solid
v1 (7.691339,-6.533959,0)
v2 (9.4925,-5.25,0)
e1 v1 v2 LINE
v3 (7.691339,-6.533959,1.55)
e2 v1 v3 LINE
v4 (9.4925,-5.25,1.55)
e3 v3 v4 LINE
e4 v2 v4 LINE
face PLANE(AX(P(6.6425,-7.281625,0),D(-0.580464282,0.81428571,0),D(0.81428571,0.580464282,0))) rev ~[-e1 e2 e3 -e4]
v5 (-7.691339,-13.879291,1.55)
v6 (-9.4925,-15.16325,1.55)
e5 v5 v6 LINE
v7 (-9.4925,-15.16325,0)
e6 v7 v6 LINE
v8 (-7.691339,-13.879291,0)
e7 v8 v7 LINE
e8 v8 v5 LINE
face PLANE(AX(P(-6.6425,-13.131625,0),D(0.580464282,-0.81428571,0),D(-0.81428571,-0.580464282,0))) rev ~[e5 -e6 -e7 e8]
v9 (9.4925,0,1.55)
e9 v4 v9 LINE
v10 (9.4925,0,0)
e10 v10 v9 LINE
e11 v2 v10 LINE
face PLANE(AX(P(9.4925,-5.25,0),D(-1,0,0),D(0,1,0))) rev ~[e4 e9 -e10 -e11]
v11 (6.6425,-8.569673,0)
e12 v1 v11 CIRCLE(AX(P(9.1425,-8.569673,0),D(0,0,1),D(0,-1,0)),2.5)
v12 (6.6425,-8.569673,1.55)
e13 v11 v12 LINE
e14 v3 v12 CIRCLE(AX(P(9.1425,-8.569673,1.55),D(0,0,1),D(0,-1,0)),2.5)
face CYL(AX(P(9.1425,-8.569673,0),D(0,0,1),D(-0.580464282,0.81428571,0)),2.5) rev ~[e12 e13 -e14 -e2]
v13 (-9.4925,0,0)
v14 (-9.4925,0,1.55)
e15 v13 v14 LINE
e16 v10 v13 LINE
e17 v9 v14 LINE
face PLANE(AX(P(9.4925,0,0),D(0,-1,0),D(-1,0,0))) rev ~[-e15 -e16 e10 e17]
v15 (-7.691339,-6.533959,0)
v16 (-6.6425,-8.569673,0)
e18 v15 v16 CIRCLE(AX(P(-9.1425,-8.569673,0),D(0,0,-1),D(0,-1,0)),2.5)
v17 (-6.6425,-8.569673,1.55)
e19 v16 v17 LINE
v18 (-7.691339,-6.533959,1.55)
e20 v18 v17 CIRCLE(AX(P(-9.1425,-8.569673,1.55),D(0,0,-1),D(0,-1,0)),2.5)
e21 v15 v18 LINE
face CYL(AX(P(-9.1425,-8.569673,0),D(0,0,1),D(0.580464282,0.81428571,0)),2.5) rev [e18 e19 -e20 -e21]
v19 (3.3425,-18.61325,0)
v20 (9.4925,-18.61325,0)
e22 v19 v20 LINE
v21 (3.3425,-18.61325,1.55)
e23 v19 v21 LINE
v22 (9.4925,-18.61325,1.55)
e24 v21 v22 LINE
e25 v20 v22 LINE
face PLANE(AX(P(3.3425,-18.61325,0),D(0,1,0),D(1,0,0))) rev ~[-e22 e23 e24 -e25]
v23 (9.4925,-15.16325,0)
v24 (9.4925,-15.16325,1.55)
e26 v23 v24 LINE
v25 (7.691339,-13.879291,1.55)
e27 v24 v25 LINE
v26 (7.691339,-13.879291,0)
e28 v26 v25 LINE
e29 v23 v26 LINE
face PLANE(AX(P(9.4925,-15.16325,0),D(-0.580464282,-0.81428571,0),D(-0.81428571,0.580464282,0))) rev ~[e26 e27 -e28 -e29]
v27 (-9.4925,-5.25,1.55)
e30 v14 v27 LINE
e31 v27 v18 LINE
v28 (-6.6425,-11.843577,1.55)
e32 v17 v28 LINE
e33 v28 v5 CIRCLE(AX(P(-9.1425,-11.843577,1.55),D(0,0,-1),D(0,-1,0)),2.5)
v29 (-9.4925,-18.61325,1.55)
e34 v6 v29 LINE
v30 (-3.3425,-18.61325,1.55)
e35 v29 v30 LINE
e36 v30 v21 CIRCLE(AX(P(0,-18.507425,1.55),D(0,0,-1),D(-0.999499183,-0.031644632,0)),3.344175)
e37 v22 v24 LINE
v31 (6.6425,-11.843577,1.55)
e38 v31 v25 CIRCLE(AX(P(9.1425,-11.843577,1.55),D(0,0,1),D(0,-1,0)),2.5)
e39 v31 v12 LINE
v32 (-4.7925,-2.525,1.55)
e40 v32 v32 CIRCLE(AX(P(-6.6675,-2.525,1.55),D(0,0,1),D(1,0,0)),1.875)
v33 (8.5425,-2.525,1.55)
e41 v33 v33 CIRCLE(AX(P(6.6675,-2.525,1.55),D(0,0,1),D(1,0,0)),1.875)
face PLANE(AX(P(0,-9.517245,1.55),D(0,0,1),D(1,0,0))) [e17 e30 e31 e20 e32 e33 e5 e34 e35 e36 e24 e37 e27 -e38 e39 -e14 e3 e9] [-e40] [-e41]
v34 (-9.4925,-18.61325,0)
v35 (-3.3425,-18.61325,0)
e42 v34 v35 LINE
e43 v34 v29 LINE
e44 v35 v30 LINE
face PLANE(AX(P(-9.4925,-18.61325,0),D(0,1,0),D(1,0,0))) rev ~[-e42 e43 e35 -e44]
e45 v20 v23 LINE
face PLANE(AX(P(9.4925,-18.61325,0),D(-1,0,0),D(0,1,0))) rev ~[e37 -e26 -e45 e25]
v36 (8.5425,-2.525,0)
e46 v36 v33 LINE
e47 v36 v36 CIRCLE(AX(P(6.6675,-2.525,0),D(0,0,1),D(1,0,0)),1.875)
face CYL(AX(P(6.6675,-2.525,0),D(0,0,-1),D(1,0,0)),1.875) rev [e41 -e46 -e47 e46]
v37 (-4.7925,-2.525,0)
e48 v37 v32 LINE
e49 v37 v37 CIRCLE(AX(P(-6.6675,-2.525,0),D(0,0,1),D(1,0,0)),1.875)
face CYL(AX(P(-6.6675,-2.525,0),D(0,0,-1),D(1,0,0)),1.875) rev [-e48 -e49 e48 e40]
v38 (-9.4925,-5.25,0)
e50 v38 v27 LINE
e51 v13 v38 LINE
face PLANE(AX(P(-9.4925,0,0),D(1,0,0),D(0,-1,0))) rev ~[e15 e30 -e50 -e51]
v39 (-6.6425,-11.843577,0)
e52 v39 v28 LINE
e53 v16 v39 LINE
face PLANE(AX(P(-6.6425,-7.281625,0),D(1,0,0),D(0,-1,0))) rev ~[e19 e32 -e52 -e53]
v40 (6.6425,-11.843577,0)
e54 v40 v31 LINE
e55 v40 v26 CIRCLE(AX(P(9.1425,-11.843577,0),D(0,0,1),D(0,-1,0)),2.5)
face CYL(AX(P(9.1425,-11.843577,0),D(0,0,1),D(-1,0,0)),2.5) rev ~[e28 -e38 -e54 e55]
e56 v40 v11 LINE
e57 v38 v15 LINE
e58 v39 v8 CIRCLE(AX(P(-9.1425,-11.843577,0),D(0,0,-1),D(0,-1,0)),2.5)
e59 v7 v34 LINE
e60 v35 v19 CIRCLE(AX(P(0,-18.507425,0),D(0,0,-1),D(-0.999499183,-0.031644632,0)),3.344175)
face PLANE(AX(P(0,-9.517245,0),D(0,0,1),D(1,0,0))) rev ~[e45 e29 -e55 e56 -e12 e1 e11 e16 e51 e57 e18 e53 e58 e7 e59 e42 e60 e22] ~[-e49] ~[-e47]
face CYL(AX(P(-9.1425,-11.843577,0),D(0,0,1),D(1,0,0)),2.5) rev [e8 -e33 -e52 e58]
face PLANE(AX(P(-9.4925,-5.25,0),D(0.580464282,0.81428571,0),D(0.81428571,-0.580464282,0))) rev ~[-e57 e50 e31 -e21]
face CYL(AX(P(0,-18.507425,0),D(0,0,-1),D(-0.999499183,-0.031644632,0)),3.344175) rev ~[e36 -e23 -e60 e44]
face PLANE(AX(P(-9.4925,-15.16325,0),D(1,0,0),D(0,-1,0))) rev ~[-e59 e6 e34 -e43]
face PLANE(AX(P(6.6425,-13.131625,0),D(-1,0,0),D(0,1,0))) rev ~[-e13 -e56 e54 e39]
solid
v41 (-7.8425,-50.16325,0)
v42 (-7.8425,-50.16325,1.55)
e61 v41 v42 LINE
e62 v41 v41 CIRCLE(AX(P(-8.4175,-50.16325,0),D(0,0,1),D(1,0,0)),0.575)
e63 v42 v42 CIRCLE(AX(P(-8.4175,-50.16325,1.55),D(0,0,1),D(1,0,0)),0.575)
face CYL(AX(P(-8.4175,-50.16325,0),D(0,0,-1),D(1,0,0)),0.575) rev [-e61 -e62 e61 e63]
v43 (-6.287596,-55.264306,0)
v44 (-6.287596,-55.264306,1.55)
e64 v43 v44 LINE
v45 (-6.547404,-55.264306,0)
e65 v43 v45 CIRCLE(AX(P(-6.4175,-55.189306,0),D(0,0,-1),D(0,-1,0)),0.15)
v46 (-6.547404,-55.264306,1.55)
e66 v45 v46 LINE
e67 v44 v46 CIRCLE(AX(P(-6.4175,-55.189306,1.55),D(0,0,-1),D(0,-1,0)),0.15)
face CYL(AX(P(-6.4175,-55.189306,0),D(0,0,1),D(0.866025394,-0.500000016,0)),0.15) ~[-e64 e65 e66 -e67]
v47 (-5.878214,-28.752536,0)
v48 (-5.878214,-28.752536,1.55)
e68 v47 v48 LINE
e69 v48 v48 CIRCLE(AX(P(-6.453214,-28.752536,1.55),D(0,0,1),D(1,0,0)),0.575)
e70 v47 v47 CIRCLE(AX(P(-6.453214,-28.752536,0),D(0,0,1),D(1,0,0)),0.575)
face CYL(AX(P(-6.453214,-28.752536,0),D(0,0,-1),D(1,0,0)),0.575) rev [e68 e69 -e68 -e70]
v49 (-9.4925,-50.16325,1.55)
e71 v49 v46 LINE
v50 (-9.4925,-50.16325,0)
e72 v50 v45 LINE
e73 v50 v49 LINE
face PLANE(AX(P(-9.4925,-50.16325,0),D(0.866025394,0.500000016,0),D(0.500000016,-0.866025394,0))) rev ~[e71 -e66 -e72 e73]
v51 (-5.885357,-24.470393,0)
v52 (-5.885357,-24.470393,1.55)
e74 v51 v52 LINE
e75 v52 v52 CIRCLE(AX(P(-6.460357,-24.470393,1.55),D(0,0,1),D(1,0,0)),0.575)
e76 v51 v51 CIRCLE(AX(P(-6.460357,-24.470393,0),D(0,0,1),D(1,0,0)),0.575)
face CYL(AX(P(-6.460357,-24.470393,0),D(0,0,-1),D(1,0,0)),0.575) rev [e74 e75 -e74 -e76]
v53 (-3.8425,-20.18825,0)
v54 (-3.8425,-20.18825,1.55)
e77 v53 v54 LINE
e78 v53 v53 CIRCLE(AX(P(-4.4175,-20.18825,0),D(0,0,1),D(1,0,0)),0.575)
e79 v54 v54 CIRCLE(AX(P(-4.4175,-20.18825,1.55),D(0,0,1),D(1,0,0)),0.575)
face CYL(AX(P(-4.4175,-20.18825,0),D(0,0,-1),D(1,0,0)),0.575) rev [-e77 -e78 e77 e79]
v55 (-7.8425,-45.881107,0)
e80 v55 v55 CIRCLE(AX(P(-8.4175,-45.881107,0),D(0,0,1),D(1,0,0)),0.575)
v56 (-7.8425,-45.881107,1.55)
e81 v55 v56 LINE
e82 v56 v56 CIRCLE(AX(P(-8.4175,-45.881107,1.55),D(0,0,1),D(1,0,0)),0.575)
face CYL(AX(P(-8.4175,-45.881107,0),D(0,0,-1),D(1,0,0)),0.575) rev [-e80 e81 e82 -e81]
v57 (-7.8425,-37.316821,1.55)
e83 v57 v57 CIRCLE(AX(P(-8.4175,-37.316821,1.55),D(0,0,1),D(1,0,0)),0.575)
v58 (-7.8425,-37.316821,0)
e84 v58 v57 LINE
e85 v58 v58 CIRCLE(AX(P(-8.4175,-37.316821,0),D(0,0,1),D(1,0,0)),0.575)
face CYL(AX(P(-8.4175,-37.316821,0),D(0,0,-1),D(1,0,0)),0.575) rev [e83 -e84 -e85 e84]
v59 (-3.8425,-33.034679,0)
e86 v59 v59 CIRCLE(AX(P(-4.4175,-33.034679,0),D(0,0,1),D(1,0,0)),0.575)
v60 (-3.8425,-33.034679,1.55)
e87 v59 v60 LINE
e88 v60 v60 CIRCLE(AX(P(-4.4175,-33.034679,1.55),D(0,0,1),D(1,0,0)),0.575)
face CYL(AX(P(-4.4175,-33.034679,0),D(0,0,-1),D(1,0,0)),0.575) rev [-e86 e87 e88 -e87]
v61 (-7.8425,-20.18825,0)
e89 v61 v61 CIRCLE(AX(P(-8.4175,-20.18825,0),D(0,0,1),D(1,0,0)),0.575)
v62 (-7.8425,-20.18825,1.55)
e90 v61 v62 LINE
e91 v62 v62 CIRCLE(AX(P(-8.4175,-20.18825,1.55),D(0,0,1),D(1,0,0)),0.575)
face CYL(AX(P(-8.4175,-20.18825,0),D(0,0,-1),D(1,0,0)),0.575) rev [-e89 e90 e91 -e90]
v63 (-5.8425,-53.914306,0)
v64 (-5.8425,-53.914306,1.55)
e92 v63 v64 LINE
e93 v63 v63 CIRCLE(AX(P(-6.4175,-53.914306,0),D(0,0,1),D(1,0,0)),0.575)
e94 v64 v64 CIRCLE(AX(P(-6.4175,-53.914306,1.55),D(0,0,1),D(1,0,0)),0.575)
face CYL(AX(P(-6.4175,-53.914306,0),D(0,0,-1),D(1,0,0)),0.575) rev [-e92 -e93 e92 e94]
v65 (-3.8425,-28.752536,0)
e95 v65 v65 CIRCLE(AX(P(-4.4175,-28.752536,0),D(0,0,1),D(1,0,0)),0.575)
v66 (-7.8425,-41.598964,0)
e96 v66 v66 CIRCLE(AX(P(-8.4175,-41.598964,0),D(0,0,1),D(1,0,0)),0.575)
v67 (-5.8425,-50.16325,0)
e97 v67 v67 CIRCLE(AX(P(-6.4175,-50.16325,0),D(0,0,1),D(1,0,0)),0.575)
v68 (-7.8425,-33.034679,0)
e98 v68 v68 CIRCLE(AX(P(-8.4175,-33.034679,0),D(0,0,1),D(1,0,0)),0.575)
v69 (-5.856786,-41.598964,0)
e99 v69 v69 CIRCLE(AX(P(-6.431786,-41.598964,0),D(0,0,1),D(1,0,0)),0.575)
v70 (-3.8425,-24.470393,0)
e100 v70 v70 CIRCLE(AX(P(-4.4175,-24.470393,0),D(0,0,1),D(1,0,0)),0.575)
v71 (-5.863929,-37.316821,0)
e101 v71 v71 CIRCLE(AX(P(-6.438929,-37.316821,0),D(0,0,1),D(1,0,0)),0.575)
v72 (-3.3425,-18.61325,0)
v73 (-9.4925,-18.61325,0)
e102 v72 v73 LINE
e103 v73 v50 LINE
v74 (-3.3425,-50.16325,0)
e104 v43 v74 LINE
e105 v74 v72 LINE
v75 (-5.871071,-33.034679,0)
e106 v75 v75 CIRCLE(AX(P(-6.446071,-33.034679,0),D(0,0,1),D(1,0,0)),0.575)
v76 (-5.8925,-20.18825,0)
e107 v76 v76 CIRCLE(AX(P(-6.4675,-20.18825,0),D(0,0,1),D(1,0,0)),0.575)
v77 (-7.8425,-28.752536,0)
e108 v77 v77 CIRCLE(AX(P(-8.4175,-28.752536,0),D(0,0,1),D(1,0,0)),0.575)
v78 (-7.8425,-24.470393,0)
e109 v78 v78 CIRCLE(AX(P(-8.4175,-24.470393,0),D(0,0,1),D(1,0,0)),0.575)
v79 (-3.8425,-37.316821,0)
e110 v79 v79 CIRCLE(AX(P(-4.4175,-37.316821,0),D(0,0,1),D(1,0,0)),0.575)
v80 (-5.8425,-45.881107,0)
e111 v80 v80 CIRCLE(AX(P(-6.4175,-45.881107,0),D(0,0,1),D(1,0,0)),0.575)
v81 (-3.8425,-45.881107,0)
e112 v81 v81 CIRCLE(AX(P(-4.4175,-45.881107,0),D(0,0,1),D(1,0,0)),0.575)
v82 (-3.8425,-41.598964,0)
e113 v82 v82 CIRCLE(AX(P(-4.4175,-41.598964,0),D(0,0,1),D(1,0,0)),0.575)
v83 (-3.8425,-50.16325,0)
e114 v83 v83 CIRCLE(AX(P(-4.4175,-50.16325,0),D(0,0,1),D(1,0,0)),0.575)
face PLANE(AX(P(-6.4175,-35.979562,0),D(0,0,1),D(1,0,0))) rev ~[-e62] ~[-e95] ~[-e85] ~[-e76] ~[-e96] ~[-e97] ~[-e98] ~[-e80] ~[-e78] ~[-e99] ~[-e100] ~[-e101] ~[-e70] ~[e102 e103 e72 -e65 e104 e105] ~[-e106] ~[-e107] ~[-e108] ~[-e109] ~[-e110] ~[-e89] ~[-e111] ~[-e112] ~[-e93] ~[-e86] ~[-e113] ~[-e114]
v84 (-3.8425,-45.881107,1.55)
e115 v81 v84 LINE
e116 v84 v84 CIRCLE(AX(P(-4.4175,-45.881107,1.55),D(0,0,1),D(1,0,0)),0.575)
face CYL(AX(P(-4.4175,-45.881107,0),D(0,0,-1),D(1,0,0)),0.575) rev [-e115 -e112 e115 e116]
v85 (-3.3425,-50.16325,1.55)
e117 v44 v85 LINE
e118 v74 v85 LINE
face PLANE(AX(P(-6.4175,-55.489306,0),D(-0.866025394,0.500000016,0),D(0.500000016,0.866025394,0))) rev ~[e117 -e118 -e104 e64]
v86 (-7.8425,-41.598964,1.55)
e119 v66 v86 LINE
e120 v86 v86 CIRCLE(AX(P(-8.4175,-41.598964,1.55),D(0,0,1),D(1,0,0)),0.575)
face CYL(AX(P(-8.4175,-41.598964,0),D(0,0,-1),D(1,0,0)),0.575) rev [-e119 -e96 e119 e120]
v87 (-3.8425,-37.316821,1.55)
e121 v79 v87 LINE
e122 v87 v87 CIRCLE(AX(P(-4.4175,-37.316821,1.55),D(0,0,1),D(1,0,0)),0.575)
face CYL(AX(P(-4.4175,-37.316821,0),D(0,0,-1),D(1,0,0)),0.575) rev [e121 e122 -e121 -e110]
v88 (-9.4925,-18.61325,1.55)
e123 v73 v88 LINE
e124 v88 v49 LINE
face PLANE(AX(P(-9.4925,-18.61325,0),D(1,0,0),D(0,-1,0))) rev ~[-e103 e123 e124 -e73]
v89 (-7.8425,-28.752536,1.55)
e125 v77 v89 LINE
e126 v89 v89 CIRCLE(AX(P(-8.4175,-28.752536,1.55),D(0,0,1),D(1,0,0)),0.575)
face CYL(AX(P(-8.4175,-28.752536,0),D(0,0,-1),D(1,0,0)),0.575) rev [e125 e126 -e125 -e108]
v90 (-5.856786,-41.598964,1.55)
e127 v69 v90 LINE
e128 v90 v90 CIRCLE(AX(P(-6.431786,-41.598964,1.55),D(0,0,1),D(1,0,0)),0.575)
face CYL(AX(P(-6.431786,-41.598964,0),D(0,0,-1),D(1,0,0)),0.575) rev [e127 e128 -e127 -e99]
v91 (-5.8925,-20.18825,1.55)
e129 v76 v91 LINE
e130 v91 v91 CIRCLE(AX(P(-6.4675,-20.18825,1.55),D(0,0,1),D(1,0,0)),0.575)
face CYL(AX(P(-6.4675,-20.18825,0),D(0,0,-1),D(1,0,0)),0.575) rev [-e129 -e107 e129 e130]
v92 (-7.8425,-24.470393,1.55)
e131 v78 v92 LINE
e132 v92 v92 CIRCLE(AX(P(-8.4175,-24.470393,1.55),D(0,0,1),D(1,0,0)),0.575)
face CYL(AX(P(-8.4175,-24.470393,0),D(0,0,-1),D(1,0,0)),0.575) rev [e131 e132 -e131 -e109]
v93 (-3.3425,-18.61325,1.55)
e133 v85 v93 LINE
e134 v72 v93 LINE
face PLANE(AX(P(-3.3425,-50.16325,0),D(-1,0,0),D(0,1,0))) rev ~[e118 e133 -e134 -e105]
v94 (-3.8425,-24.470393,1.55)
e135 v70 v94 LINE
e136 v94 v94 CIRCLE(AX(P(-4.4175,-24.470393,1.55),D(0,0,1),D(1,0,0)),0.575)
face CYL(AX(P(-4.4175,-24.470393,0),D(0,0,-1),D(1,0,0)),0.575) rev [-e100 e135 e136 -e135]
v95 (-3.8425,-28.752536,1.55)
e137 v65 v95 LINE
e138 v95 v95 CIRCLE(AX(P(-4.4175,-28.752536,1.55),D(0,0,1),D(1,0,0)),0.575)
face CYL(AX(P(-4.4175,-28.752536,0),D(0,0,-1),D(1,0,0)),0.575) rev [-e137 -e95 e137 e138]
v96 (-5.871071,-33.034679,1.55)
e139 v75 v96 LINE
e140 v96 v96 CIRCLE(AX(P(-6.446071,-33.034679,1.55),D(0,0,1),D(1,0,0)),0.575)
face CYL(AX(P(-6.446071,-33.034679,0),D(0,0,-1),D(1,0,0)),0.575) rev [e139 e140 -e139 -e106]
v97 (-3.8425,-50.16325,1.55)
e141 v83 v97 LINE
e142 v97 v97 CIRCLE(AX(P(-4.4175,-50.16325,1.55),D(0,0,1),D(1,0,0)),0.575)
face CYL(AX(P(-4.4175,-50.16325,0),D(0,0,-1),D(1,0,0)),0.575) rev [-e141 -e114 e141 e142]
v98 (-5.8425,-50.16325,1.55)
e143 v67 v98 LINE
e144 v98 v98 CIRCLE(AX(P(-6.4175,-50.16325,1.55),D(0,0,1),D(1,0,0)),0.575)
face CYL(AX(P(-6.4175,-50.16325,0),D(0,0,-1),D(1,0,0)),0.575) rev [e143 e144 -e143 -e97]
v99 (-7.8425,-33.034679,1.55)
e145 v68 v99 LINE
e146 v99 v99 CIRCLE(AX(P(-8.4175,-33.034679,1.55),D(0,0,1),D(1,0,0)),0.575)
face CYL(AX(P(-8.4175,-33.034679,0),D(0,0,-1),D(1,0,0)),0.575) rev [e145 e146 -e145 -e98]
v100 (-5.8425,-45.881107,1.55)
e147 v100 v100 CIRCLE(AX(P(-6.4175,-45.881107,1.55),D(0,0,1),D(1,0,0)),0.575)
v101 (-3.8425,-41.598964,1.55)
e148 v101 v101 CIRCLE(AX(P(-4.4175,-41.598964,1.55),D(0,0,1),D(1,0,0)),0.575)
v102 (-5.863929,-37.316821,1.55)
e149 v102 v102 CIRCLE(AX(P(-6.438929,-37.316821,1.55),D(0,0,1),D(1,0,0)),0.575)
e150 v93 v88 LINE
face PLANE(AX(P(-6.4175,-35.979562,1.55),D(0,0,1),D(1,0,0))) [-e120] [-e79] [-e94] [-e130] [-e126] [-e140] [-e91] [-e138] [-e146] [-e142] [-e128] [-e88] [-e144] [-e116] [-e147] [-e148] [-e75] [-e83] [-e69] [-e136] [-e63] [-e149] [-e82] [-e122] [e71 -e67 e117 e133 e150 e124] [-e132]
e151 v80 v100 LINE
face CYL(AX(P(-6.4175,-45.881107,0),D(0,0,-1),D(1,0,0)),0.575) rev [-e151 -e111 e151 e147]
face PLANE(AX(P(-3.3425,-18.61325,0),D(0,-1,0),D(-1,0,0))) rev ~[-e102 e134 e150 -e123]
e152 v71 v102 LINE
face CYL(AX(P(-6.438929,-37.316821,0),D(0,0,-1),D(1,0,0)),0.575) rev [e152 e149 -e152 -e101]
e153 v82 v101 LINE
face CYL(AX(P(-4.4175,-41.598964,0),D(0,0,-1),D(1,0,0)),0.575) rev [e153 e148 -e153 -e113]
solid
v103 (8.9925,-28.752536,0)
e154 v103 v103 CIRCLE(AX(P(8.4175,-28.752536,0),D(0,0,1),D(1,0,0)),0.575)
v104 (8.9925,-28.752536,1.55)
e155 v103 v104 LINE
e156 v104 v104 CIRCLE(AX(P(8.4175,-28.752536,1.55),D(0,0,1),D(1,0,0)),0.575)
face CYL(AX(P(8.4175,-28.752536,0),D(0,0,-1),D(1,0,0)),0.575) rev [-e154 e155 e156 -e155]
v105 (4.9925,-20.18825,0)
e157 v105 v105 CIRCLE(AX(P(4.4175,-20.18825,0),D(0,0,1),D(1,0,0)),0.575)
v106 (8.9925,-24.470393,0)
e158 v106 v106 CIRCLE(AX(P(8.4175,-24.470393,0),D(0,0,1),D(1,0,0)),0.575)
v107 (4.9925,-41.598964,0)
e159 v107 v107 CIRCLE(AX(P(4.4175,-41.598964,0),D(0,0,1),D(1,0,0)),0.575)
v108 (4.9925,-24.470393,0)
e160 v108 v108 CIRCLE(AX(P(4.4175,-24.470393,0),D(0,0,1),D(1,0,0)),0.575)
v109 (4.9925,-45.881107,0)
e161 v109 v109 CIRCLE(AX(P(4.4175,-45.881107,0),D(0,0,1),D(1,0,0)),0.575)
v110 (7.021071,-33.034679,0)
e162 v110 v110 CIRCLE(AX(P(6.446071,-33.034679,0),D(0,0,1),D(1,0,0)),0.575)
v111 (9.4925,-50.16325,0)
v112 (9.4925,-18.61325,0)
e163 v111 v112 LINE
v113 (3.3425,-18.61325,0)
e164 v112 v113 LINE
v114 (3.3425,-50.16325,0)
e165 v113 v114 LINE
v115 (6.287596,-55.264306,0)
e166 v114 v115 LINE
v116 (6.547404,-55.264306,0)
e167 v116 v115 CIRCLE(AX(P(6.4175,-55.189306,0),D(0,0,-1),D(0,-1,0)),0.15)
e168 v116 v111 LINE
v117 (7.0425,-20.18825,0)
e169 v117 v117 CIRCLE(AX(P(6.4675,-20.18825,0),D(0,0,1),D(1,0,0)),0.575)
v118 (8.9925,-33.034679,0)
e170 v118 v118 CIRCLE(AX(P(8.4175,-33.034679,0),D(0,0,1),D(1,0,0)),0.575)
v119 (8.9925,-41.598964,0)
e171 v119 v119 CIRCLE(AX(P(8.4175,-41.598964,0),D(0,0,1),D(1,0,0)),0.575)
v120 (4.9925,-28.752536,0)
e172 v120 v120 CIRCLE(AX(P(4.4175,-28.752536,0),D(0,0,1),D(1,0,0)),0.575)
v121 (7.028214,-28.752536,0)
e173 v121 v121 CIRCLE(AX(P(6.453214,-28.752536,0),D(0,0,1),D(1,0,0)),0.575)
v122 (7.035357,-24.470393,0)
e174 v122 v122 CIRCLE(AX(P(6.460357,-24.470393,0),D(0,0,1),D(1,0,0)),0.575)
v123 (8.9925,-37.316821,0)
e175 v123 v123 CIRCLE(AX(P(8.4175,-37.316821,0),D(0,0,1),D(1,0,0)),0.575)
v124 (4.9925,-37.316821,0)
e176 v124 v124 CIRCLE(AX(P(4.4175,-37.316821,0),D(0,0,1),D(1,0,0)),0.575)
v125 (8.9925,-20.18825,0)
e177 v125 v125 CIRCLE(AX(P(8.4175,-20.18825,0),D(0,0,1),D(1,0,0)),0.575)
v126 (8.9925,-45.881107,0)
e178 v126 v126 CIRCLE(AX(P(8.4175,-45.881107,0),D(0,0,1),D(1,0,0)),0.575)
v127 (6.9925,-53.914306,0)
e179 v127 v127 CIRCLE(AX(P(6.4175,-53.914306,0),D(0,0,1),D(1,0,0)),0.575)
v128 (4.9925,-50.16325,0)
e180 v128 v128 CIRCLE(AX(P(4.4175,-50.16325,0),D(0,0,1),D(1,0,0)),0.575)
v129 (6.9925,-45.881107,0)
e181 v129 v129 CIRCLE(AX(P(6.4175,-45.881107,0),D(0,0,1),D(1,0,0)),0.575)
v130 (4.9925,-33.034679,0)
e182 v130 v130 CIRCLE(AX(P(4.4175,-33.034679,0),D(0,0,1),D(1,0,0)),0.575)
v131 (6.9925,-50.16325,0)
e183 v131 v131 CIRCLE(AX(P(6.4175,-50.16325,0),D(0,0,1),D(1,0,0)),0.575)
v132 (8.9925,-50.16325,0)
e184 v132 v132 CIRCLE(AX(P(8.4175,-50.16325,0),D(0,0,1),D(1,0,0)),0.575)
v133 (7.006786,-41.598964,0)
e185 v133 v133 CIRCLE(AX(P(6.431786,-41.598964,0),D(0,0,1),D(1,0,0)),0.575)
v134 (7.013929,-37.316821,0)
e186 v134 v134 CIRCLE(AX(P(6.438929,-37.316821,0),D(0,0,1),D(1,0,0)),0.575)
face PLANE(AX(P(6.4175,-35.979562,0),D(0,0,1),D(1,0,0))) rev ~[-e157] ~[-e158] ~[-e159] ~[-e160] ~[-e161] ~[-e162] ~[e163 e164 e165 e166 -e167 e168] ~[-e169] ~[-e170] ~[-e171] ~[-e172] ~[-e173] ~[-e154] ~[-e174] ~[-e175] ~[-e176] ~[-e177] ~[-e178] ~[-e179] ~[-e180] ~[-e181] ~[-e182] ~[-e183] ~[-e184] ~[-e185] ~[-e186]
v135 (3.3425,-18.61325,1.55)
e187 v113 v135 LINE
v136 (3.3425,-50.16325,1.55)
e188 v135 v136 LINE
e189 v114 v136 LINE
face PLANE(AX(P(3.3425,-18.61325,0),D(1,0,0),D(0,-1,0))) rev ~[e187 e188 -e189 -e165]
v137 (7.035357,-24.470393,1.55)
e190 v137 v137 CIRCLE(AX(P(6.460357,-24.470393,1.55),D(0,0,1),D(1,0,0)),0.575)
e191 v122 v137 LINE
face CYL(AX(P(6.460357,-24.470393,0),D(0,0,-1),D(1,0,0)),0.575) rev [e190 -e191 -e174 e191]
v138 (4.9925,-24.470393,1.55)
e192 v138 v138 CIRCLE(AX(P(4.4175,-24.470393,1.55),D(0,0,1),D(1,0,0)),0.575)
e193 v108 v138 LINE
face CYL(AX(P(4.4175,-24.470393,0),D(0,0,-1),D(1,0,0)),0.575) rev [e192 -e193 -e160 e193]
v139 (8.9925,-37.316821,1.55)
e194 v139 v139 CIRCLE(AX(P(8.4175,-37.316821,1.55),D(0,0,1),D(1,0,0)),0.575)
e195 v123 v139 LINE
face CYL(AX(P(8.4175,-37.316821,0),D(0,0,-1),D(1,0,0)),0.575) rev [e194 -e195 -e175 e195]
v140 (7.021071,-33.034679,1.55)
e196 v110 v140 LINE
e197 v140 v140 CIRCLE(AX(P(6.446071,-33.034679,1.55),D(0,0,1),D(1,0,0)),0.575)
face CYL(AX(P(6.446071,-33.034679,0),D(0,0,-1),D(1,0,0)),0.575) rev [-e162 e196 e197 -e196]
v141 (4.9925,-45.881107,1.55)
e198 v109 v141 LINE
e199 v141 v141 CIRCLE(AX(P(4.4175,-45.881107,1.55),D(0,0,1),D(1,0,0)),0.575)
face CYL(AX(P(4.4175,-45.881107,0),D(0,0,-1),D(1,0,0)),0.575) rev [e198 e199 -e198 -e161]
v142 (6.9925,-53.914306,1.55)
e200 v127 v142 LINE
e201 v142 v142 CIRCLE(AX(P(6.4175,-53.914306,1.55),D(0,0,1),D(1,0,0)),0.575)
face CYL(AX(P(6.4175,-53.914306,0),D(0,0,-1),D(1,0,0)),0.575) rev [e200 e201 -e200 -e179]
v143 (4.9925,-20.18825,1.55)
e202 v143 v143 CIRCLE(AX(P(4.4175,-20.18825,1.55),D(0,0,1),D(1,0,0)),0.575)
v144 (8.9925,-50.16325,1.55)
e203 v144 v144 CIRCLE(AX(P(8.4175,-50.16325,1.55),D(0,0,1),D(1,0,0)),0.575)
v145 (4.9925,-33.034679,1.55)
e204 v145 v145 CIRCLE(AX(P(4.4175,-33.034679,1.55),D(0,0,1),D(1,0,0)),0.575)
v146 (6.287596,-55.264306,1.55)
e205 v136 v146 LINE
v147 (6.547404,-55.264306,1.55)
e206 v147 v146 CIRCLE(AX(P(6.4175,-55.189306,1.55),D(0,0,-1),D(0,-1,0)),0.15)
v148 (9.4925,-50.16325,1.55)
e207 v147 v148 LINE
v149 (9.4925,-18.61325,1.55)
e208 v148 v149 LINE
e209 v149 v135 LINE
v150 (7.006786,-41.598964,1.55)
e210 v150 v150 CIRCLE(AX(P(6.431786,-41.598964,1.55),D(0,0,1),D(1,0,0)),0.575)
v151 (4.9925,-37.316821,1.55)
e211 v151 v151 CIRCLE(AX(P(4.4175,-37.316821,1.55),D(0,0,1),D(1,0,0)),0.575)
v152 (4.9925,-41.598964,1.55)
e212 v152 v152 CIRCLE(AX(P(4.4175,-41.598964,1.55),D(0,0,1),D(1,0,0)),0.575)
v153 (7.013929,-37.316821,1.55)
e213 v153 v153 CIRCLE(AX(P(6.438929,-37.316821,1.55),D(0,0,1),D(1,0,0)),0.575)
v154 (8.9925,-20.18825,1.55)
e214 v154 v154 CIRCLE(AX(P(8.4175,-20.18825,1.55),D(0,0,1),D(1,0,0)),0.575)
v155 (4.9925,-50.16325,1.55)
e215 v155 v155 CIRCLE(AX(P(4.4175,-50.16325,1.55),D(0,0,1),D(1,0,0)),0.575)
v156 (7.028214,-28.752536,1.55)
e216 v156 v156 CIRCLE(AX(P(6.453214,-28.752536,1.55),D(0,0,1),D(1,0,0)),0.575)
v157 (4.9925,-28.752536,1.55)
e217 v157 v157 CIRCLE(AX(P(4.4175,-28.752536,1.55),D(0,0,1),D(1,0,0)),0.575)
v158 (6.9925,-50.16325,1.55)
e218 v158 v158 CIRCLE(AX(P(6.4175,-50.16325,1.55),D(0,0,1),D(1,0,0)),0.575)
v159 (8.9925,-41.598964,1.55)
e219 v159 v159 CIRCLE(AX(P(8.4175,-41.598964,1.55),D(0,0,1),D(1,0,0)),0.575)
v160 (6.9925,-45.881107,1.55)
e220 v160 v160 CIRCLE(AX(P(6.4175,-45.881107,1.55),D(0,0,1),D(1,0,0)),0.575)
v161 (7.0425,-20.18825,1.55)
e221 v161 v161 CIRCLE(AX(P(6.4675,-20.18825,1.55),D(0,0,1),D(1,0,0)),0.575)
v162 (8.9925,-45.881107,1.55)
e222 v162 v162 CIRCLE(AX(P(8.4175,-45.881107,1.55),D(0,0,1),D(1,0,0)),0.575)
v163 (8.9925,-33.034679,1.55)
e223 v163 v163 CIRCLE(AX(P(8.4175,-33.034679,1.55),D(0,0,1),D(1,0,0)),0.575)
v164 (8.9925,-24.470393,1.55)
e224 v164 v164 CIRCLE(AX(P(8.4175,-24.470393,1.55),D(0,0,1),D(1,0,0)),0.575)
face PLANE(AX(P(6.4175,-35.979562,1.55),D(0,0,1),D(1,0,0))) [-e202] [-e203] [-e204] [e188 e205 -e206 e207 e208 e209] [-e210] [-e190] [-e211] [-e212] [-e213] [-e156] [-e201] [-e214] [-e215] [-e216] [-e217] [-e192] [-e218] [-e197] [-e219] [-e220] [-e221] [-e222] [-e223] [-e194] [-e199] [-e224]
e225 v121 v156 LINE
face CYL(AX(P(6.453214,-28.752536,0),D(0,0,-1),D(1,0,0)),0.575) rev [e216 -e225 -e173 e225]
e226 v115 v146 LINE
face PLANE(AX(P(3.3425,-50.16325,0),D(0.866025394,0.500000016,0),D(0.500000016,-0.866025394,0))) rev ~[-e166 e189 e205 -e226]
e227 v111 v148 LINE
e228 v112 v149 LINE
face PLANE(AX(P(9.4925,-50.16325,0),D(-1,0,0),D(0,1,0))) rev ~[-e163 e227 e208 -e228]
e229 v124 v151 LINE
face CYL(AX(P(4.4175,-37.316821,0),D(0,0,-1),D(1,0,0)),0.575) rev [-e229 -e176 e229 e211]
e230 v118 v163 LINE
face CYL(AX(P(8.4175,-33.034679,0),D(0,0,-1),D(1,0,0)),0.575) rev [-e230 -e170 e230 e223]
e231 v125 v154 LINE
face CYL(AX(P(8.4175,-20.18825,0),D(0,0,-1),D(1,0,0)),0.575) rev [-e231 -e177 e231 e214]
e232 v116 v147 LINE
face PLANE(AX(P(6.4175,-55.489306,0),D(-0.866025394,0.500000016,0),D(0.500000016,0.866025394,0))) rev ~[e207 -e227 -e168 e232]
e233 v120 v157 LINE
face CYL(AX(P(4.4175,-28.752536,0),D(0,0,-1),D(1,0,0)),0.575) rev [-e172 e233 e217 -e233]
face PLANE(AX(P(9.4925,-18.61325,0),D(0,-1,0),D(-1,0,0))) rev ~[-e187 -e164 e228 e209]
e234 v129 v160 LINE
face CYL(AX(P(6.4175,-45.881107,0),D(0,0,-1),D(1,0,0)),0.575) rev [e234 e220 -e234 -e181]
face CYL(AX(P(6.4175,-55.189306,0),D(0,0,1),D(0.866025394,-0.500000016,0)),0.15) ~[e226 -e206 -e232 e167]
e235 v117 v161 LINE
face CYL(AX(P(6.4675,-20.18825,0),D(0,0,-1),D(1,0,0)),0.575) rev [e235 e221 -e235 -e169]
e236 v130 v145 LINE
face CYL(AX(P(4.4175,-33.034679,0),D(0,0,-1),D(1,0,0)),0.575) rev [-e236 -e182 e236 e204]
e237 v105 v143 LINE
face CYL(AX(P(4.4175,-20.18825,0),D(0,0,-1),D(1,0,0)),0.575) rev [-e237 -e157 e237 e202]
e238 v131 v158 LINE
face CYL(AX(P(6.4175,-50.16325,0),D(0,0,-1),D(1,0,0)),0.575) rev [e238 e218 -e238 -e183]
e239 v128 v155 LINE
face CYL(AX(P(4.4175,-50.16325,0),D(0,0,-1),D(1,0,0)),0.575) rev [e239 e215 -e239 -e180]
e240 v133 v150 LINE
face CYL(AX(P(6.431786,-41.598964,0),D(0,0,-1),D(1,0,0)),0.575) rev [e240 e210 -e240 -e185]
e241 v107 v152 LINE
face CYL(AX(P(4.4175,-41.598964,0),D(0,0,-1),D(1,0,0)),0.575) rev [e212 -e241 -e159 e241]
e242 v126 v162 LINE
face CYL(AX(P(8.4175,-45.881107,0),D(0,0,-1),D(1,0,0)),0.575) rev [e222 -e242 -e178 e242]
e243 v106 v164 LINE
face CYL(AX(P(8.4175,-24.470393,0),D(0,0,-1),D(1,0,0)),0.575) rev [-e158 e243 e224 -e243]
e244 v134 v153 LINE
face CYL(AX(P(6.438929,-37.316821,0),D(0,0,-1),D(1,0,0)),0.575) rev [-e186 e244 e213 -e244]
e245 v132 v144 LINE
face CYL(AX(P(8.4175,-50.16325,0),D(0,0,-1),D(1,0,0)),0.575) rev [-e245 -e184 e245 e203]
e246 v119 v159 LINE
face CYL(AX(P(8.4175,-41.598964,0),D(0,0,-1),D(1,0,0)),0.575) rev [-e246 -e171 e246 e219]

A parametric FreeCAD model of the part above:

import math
import FreeCAD as App
import Part
import Sketcher

V = App.Vector
Q = App.Units.Quantity


def edges_at(feature, points):
    """Names of the edges that pass closest to the given points."""
    edges = feature.Shape.Edges
    near = lambda p: min(range(len(edges)), key=lambda i: edges[i].distToShape(Part.Vertex(*p))[0])
    return sorted({f"Edge{near(p) + 1}" for p in points})


def add_polygon(sketch, points):
    """Adds a closed chain of lines whose ends are joined by coincident constraints."""
    first, n = sketch.GeometryCount, len(points)
    for a, b in zip(points, points[1:] + points[:1]):
        sketch.addGeometry(Part.LineSegment(App.Vector(*a, 0), App.Vector(*b, 0)), False)
    for i in range(n):
        sketch.addConstraint(Sketcher.Constraint("Coincident", first + i, 2, first + (i + 1) % n, 1))

doc = App.newDocument("Part")
body = doc.addObject("PartDesign::Body", "Body")

# Sketch on XY plane
sketch1 = body.newObject("Sketcher::SketchObject", "Sketch")
sketch1.AttachmentSupport = (doc.getObject("XY_Plane"), [""])
sketch1.MapMode = "FlatFace"
sketch1.addGeometry(Part.LineSegment(V(9.4925, 0, 0), V(-9.4925, 0, 0)), False)
sketch1.addGeometry(Part.LineSegment(V(-9.4925, 0, 0), V(-9.4925, -5.25, 0)), False)
sketch1.addGeometry(Part.LineSegment(V(-9.4925, -5.25, 0), V(-6.6425, -7.281625, 0)), False)
sketch1.addGeometry(Part.LineSegment(V(-6.6425, -7.281625, 0), V(-6.6425, -13.131625, 0)), False)
sketch1.addGeometry(Part.LineSegment(V(-6.6425, -13.131625, 0), V(-9.4925, -15.16325, 0)), False)
sketch1.addGeometry(Part.LineSegment(V(-9.4925, -15.16325, 0), V(-9.4925, -18.61325, 0)), False)
sketch1.addGeometry(Part.LineSegment(V(-9.4925, -18.61325, 0), V(-3.3425, -18.61325, 0)), False)
sketch1.addGeometry(Part.ArcOfCircle(Part.Circle(V(0, -18.507425, 0), V(0, 0, 1), 3.344175), math.radians(-1.813407), math.radians(181.813407)), False)
sketch1.addGeometry(Part.LineSegment(V(3.3425, -18.61325, 0), V(9.4925, -18.61325, 0)), False)
sketch1.addGeometry(Part.LineSegment(V(9.4925, -18.61325, 0), V(9.4925, -15.16325, 0)), False)
sketch1.addGeometry(Part.LineSegment(V(9.4925, -15.16325, 0), V(6.6425, -13.131625, 0)), False)
sketch1.addGeometry(Part.LineSegment(V(6.6425, -13.131625, 0), V(6.6425, -7.281625, 0)), False)
sketch1.addGeometry(Part.LineSegment(V(6.6425, -7.281625, 0), V(9.4925, -5.25, 0)), False)
sketch1.addGeometry(Part.LineSegment(V(9.4925, -5.25, 0), V(9.4925, 0, 0)), False)
sketch1.addGeometry(Part.Circle(V(-6.6675, -2.525, 0), V(0, 0, 1), 1.875), False)
sketch1.addGeometry(Part.Circle(V(6.6675, -2.525, 0), V(0, 0, 1), 1.875), False)
sketch1.addConstraint(Sketcher.Constraint("Coincident", 0, 2, 1, 1))
sketch1.addConstraint(Sketcher.Constraint("Coincident", 1, 2, 2, 1))
sketch1.addConstraint(Sketcher.Constraint("Coincident", 2, 2, 3, 1))
sketch1.addConstraint(Sketcher.Constraint("Coincident", 3, 2, 4, 1))
sketch1.addConstraint(Sketcher.Constraint("Coincident", 4, 2, 5, 1))
sketch1.addConstraint(Sketcher.Constraint("Coincident", 5, 2, 6, 1))
sketch1.addConstraint(Sketcher.Constraint("Coincident", 6, 2, 7, 2))
sketch1.addConstraint(Sketcher.Constraint("Coincident", 7, 1, 8, 1))
sketch1.addConstraint(Sketcher.Constraint("Coincident", 8, 2, 9, 1))
sketch1.addConstraint(Sketcher.Constraint("Coincident", 9, 2, 10, 1))
sketch1.addConstraint(Sketcher.Constraint("Coincident", 10, 2, 11, 1))
sketch1.addConstraint(Sketcher.Constraint("Coincident", 11, 2, 12, 1))
sketch1.addConstraint(Sketcher.Constraint("Coincident", 12, 2, 13, 1))
sketch1.addConstraint(Sketcher.Constraint("Coincident", 13, 2, 0, 1))
sketch1.addConstraint(Sketcher.Constraint("Horizontal", 0))
sketch1.addConstraint(Sketcher.Constraint("Vertical", 1))
sketch1.addConstraint(Sketcher.Constraint("Vertical", 3))
sketch1.addConstraint(Sketcher.Constraint("Vertical", 5))
sketch1.addConstraint(Sketcher.Constraint("Horizontal", 6))
sketch1.addConstraint(Sketcher.Constraint("Horizontal", 8))
sketch1.addConstraint(Sketcher.Constraint("Vertical", 9))
sketch1.addConstraint(Sketcher.Constraint("Vertical", 11))
sketch1.addConstraint(Sketcher.Constraint("Vertical", 13))
sketch1.addConstraint(Sketcher.Constraint("Equal", 14, 15))
sketch1.addConstraint(Sketcher.Constraint("Symmetric", 0, 2, 13, 2, -1, 1))
sketch1.addConstraint(Sketcher.Constraint("Symmetric", 14, 3, 15, 3, -2))
sketch1.addConstraint(Sketcher.Constraint("Symmetric", 6, 2, 7, 1, -2))
sketch1.addConstraint(Sketcher.Constraint("Symmetric", 4, 2, 9, 2, -2))
sketch1.addConstraint(Sketcher.Constraint("Symmetric", 3, 2, 10, 2, -2))
sketch1.addConstraint(Sketcher.Constraint("Parallel", 2, 10))
sketch1.addConstraint(Sketcher.Constraint("Parallel", 4, 12))
sketch1.addConstraint(Sketcher.Constraint("Horizontal", 2, 2, 11, 2))
sketch1.addConstraint(Sketcher.Constraint("Vertical", 1, 2, 4, 2))
sketch1.addConstraint(Sketcher.Constraint("Diameter", 14, 3.75))
sketch1.addConstraint(Sketcher.Constraint("Distance", 2, 3.5))
sketch1.addConstraint(Sketcher.Constraint("DistanceX", 6, 1, 6, 2, 6.15))
sketch1.addConstraint(Sketcher.Constraint("DistanceY", 1, 2, 1, 1, 5.25))
sketch1.addConstraint(Sketcher.Constraint("DistanceY", 3, 2, 3, 1, 5.85))
sketch1.addConstraint(Sketcher.Constraint("DistanceY", 5, 2, 5, 1, 3.45))
sketch1.addConstraint(Sketcher.Constraint("DistanceX", 3, 2, 6, 2, 3.3))
sketch1.addConstraint(Sketcher.Constraint("DistanceX", 0, 2, 0, 1, 18.985))
sketch1.addConstraint(Sketcher.Constraint("DistanceX", 0, 2, 15, 3, 16.16))
sketch1.addConstraint(Sketcher.Constraint("DistanceY", 14, 3, -1, 1, 2.525))
sketch1.addConstraint(Sketcher.Constraint("Radius", 7, 3.344175))
pad1 = body.newObject("PartDesign::Pad", "Pad")
pad1.Profile = sketch1
pad1.Length = 1.55
doc.recompute()

fillet = body.newObject("PartDesign::Fillet", "Fillet")
fillet.Base = (pad1, edges_at(pad1, [
    (-6.643, -7.282, 0.775),
    (-6.643, -13.132, 0.775),
    (6.643, -13.132, 0.775),
    (6.643, -7.282, 0.775),
]))
fillet.Radius = 2.5
body2 = doc.addObject("PartDesign::Body", "Body001")
body2.AllowCompound = True

# Sketch on XY plane
sketch2 = body2.newObject("Sketcher::SketchObject", "Sketch001")
sketch2.AttachmentSupport = (doc.getObject("XY_Plane001"), [""])
sketch2.MapMode = "FlatFace"
add_polygon(sketch2, [(-3.3425, -18.61325), (-9.4925, -18.61325), (-9.4925, -50.16325), (-6.4175, -55.489306), (-3.3425, -50.16325)])  # lines 0-4
sketch2.addGeometry(Part.Circle(V(-8.4175, -50.16325, 0), V(0, 0, 1), 0.575), False)  # 5
sketch2.addGeometry(Part.Circle(V(-8.4175, -45.881107, 0), V(0, 0, 1), 0.575), False)  # 6
sketch2.addGeometry(Part.Circle(V(-8.4175, -41.598964, 0), V(0, 0, 1), 0.575), False)  # 7
sketch2.addGeometry(Part.Circle(V(-8.4175, -37.316821, 0), V(0, 0, 1), 0.575), False)  # 8
sketch2.addGeometry(Part.Circle(V(-6.431786, -41.598964, 0), V(0, 0, 1), 0.575), False)  # 9
sketch2.addGeometry(Part.Circle(V(-6.438929, -37.316821, 0), V(0, 0, 1), 0.575), False)  # 10
sketch2.addGeometry(Part.Circle(V(-6.4175, -53.914306, 0), V(0, 0, 1), 0.575), False)  # 11
sketch2.addGeometry(Part.Circle(V(-6.4175, -50.16325, 0), V(0, 0, 1), 0.575), False)  # 12
sketch2.addGeometry(Part.Circle(V(-6.4175, -45.881107, 0), V(0, 0, 1), 0.575), False)  # 13
sketch2.addGeometry(Part.Circle(V(-4.4175, -50.16325, 0), V(0, 0, 1), 0.575), False)  # 14
sketch2.addGeometry(Part.Circle(V(-4.4175, -45.881107, 0), V(0, 0, 1), 0.575), False)  # 15
sketch2.addGeometry(Part.Circle(V(-4.4175, -41.598964, 0), V(0, 0, 1), 0.575), False)  # 16
sketch2.addGeometry(Part.Circle(V(-4.4175, -37.316821, 0), V(0, 0, 1), 0.575), False)  # 17
sketch2.addGeometry(Part.Circle(V(-8.4175, -33.034679, 0), V(0, 0, 1), 0.575), False)  # 18
sketch2.addGeometry(Part.Circle(V(-8.4175, -28.752536, 0), V(0, 0, 1), 0.575), False)  # 19
sketch2.addGeometry(Part.Circle(V(-6.446071, -33.034679, 0), V(0, 0, 1), 0.575), False)  # 20
sketch2.addGeometry(Part.Circle(V(-6.453214, -28.752536, 0), V(0, 0, 1), 0.575), False)  # 21
sketch2.addGeometry(Part.Circle(V(-8.4175, -24.470393, 0), V(0, 0, 1), 0.575), False)  # 22
sketch2.addGeometry(Part.Circle(V(-8.4175, -20.18825, 0), V(0, 0, 1), 0.575), False)  # 23
sketch2.addGeometry(Part.Circle(V(-6.460357, -24.470393, 0), V(0, 0, 1), 0.575), False)  # 24
sketch2.addGeometry(Part.Circle(V(-6.4675, -20.18825, 0), V(0, 0, 1), 0.575), False)  # 25
sketch2.addGeometry(Part.Circle(V(-4.4175, -33.034679, 0), V(0, 0, 1), 0.575), False)  # 26
sketch2.addGeometry(Part.Circle(V(-4.4175, -28.752536, 0), V(0, 0, 1), 0.575), False)  # 27
sketch2.addGeometry(Part.Circle(V(-4.4175, -24.470393, 0), V(0, 0, 1), 0.575), False)  # 28
sketch2.addGeometry(Part.Circle(V(-4.4175, -20.18825, 0), V(0, 0, 1), 0.575), False)  # 29
add_polygon(sketch2, [(9.4925, -50.16325), (9.4925, -18.61325), (3.3425, -18.61325), (3.3425, -50.16325), (6.4175, -55.489306)])  # lines 30-34
sketch2.addGeometry(Part.Circle(V(4.4175, -50.16325, 0), V(0, 0, 1), 0.575), False)  # 35
sketch2.addGeometry(Part.Circle(V(4.4175, -45.881107, 0), V(0, 0, 1), 0.575), False)  # 36
sketch2.addGeometry(Part.Circle(V(4.4175, -41.598964, 0), V(0, 0, 1), 0.575), False)  # 37
sketch2.addGeometry(Part.Circle(V(4.4175, -37.316821, 0), V(0, 0, 1), 0.575), False)  # 38
sketch2.addGeometry(Part.Circle(V(6.4175, -53.914306, 0), V(0, 0, 1), 0.575), False)  # 39
sketch2.addGeometry(Part.Circle(V(6.4175, -50.16325, 0), V(0, 0, 1), 0.575), False)  # 40
sketch2.addGeometry(Part.Circle(V(6.4175, -45.881107, 0), V(0, 0, 1), 0.575), False)  # 41
sketch2.addGeometry(Part.Circle(V(8.4175, -50.16325, 0), V(0, 0, 1), 0.575), False)  # 42
sketch2.addGeometry(Part.Circle(V(8.4175, -45.881107, 0), V(0, 0, 1), 0.575), False)  # 43
sketch2.addGeometry(Part.Circle(V(6.431786, -41.598964, 0), V(0, 0, 1), 0.575), False)  # 44
sketch2.addGeometry(Part.Circle(V(6.438929, -37.316821, 0), V(0, 0, 1), 0.575), False)  # 45
sketch2.addGeometry(Part.Circle(V(8.4175, -41.598964, 0), V(0, 0, 1), 0.575), False)  # 46
sketch2.addGeometry(Part.Circle(V(8.4175, -37.316821, 0), V(0, 0, 1), 0.575), False)  # 47
sketch2.addGeometry(Part.Circle(V(4.4175, -33.034679, 0), V(0, 0, 1), 0.575), False)  # 48
sketch2.addGeometry(Part.Circle(V(4.4175, -28.752536, 0), V(0, 0, 1), 0.575), False)  # 49
sketch2.addGeometry(Part.Circle(V(4.4175, -24.470393, 0), V(0, 0, 1), 0.575), False)  # 50
sketch2.addGeometry(Part.Circle(V(4.4175, -20.18825, 0), V(0, 0, 1), 0.575), False)  # 51
sketch2.addGeometry(Part.Circle(V(6.446071, -33.034679, 0), V(0, 0, 1), 0.575), False)  # 52
sketch2.addGeometry(Part.Circle(V(6.453214, -28.752536, 0), V(0, 0, 1), 0.575), False)  # 53
sketch2.addGeometry(Part.Circle(V(8.4175, -33.034679, 0), V(0, 0, 1), 0.575), False)  # 54
sketch2.addGeometry(Part.Circle(V(8.4175, -28.752536, 0), V(0, 0, 1), 0.575), False)  # 55
sketch2.addGeometry(Part.Circle(V(6.460357, -24.470393, 0), V(0, 0, 1), 0.575), False)  # 56
sketch2.addGeometry(Part.Circle(V(6.4675, -20.18825, 0), V(0, 0, 1), 0.575), False)  # 57
sketch2.addGeometry(Part.Circle(V(8.4175, -24.470393, 0), V(0, 0, 1), 0.575), False)  # 58
sketch2.addGeometry(Part.Circle(V(8.4175, -20.18825, 0), V(0, 0, 1), 0.575), False)  # 59
sketch2.addConstraint(Sketcher.Constraint("Horizontal", 0))
sketch2.addConstraint(Sketcher.Constraint("Vertical", 1))
sketch2.addConstraint(Sketcher.Constraint("Vertical", 4))
sketch2.addConstraint(Sketcher.Constraint("Vertical", 30))
sketch2.addConstraint(Sketcher.Constraint("Horizontal", 31))
sketch2.addConstraint(Sketcher.Constraint("Vertical", 32))
sketch2.addConstraint(Sketcher.Constraint("Equal", 5, 6))
sketch2.addConstraint(Sketcher.Constraint("Equal", 6, 7))
sketch2.addConstraint(Sketcher.Constraint("Equal", 7, 8))
sketch2.addConstraint(Sketcher.Constraint("Equal", 8, 9))
sketch2.addConstraint(Sketcher.Constraint("Equal", 9, 10))
sketch2.addConstraint(Sketcher.Constraint("Equal", 10, 11))
sketch2.addConstraint(Sketcher.Constraint("Equal", 11, 12))
sketch2.addConstraint(Sketcher.Constraint("Equal", 12, 13))
sketch2.addConstraint(Sketcher.Constraint("Equal", 13, 14))
sketch2.addConstraint(Sketcher.Constraint("Equal", 14, 15))
sketch2.addConstraint(Sketcher.Constraint("Equal", 15, 16))
sketch2.addConstraint(Sketcher.Constraint("Equal", 16, 17))
sketch2.addConstraint(Sketcher.Constraint("Equal", 17, 18))
sketch2.addConstraint(Sketcher.Constraint("Equal", 18, 19))
sketch2.addConstraint(Sketcher.Constraint("Equal", 19, 20))
sketch2.addConstraint(Sketcher.Constraint("Equal", 20, 21))
sketch2.addConstraint(Sketcher.Constraint("Equal", 21, 22))
sketch2.addConstraint(Sketcher.Constraint("Equal", 22, 23))
sketch2.addConstraint(Sketcher.Constraint("Equal", 23, 24))
sketch2.addConstraint(Sketcher.Constraint("Equal", 24, 25))
sketch2.addConstraint(Sketcher.Constraint("Equal", 25, 26))
sketch2.addConstraint(Sketcher.Constraint("Equal", 26, 27))
sketch2.addConstraint(Sketcher.Constraint("Equal", 27, 28))
sketch2.addConstraint(Sketcher.Constraint("Equal", 28, 29))
sketch2.addConstraint(Sketcher.Constraint("Equal", 29, 35))
sketch2.addConstraint(Sketcher.Constraint("Equal", 35, 36))
sketch2.addConstraint(Sketcher.Constraint("Equal", 36, 37))
sketch2.addConstraint(Sketcher.Constraint("Equal", 37, 38))
sketch2.addConstraint(Sketcher.Constraint("Equal", 38, 39))
sketch2.addConstraint(Sketcher.Constraint("Equal", 39, 40))
sketch2.addConstraint(Sketcher.Constraint("Equal", 40, 41))
sketch2.addConstraint(Sketcher.Constraint("Equal", 41, 42))
sketch2.addConstraint(Sketcher.Constraint("Equal", 42, 43))
sketch2.addConstraint(Sketcher.Constraint("Equal", 43, 44))
sketch2.addConstraint(Sketcher.Constraint("Equal", 44, 45))
sketch2.addConstraint(Sketcher.Constraint("Equal", 45, 46))
sketch2.addConstraint(Sketcher.Constraint("Equal", 46, 47))
sketch2.addConstraint(Sketcher.Constraint("Equal", 47, 48))
sketch2.addConstraint(Sketcher.Constraint("Equal", 48, 49))
sketch2.addConstraint(Sketcher.Constraint("Equal", 49, 50))
sketch2.addConstraint(Sketcher.Constraint("Equal", 50, 51))
sketch2.addConstraint(Sketcher.Constraint("Equal", 51, 52))
sketch2.addConstraint(Sketcher.Constraint("Equal", 52, 53))
sketch2.addConstraint(Sketcher.Constraint("Equal", 53, 54))
sketch2.addConstraint(Sketcher.Constraint("Equal", 54, 55))
sketch2.addConstraint(Sketcher.Constraint("Equal", 55, 56))
sketch2.addConstraint(Sketcher.Constraint("Equal", 56, 57))
sketch2.addConstraint(Sketcher.Constraint("Equal", 57, 58))
sketch2.addConstraint(Sketcher.Constraint("Equal", 58, 59))
sketch2.addConstraint(Sketcher.Constraint("Symmetric", 14, 3, 35, 3, -2))
sketch2.addConstraint(Sketcher.Constraint("Symmetric", 15, 3, 36, 3, -2))
sketch2.addConstraint(Sketcher.Constraint("Symmetric", 16, 3, 37, 3, -2))
sketch2.addConstraint(Sketcher.Constraint("Symmetric", 17, 3, 38, 3, -2))
sketch2.addConstraint(Sketcher.Constraint("Symmetric", 11, 3, 39, 3, -2))
sketch2.addConstraint(Sketcher.Constraint("Symmetric", 12, 3, 40, 3, -2))
sketch2.addConstraint(Sketcher.Constraint("Symmetric", 13, 3, 41, 3, -2))
sketch2.addConstraint(Sketcher.Constraint("Symmetric", 5, 3, 42, 3, -2))
sketch2.addConstraint(Sketcher.Constraint("Symmetric", 6, 3, 43, 3, -2))
sketch2.addConstraint(Sketcher.Constraint("Symmetric", 9, 3, 44, 3, -2))
sketch2.addConstraint(Sketcher.Constraint("Symmetric", 10, 3, 45, 3, -2))
sketch2.addConstraint(Sketcher.Constraint("Symmetric", 7, 3, 46, 3, -2))
sketch2.addConstraint(Sketcher.Constraint("Symmetric", 8, 3, 47, 3, -2))
sketch2.addConstraint(Sketcher.Constraint("Symmetric", 26, 3, 48, 3, -2))
sketch2.addConstraint(Sketcher.Constraint("Symmetric", 27, 3, 49, 3, -2))
sketch2.addConstraint(Sketcher.Constraint("Symmetric", 28, 3, 50, 3, -2))
sketch2.addConstraint(Sketcher.Constraint("Symmetric", 29, 3, 51, 3, -2))
sketch2.addConstraint(Sketcher.Constraint("Symmetric", 20, 3, 52, 3, -2))
sketch2.addConstraint(Sketcher.Constraint("Symmetric", 21, 3, 53, 3, -2))
sketch2.addConstraint(Sketcher.Constraint("Symmetric", 18, 3, 54, 3, -2))
sketch2.addConstraint(Sketcher.Constraint("Symmetric", 19, 3, 55, 3, -2))
sketch2.addConstraint(Sketcher.Constraint("Symmetric", 24, 3, 56, 3, -2))
sketch2.addConstraint(Sketcher.Constraint("Symmetric", 25, 3, 57, 3, -2))
sketch2.addConstraint(Sketcher.Constraint("Symmetric", 22, 3, 58, 3, -2))
sketch2.addConstraint(Sketcher.Constraint("Symmetric", 23, 3, 59, 3, -2))
sketch2.addConstraint(Sketcher.Constraint("Symmetric", 0, 2, 30, 2, -2))
sketch2.addConstraint(Sketcher.Constraint("Symmetric", 3, 2, 32, 2, -2))
sketch2.addConstraint(Sketcher.Constraint("Symmetric", 2, 2, 33, 2, -2))
sketch2.addConstraint(Sketcher.Constraint("Parallel", 2, 33))
sketch2.addConstraint(Sketcher.Constraint("Parallel", 3, 34))
sketch2.addConstraint(Sketcher.Constraint("Horizontal", 7, 3, 9, 3))
sketch2.addConstraint(Sketcher.Constraint("Horizontal", 8, 3, 10, 3))
sketch2.addConstraint(Sketcher.Constraint("Horizontal", 5, 3, 12, 3))
sketch2.addConstraint(Sketcher.Constraint("Horizontal", 6, 3, 13, 3))
sketch2.addConstraint(Sketcher.Constraint("Horizontal", 12, 3, 14, 3))
sketch2.addConstraint(Sketcher.Constraint("Horizontal", 13, 3, 15, 3))
sketch2.addConstraint(Sketcher.Constraint("Horizontal", 9, 3, 16, 3))
sketch2.addConstraint(Sketcher.Constraint("Horizontal", 10, 3, 17, 3))
sketch2.addConstraint(Sketcher.Constraint("Horizontal", 18, 3, 20, 3))
sketch2.addConstraint(Sketcher.Constraint("Horizontal", 19, 3, 21, 3))
sketch2.addConstraint(Sketcher.Constraint("Horizontal", 22, 3, 24, 3))
sketch2.addConstraint(Sketcher.Constraint("Horizontal", 23, 3, 25, 3))
sketch2.addConstraint(Sketcher.Constraint("Horizontal", 20, 3, 26, 3))
sketch2.addConstraint(Sketcher.Constraint("Horizontal", 21, 3, 27, 3))
sketch2.addConstraint(Sketcher.Constraint("Horizontal", 24, 3, 28, 3))
sketch2.addConstraint(Sketcher.Constraint("Horizontal", 25, 3, 29, 3))
sketch2.addConstraint(Sketcher.Constraint("Horizontal", 42, 3, 1, 2))
sketch2.addConstraint(Sketcher.Constraint("Horizontal", 1, 2, 3, 2))
sketch2.addConstraint(Sketcher.Constraint("Vertical", 5, 3, 6, 3))
sketch2.addConstraint(Sketcher.Constraint("Vertical", 6, 3, 7, 3))
sketch2.addConstraint(Sketcher.Constraint("Vertical", 7, 3, 8, 3))
sketch2.addConstraint(Sketcher.Constraint("Vertical", 11, 3, 12, 3))
sketch2.addConstraint(Sketcher.Constraint("Vertical", 12, 3, 13, 3))
sketch2.addConstraint(Sketcher.Constraint("Vertical", 14, 3, 15, 3))
sketch2.addConstraint(Sketcher.Constraint("Vertical", 15, 3, 16, 3))
sketch2.addConstraint(Sketcher.Constraint("Vertical", 16, 3, 17, 3))
sketch2.addConstraint(Sketcher.Constraint("Vertical", 8, 3, 18, 3))
sketch2.addConstraint(Sketcher.Constraint("Vertical", 18, 3, 19, 3))
sketch2.addConstraint(Sketcher.Constraint("Vertical", 19, 3, 22, 3))
sketch2.addConstraint(Sketcher.Constraint("Vertical", 22, 3, 23, 3))
sketch2.addConstraint(Sketcher.Constraint("Vertical", 17, 3, 26, 3))
sketch2.addConstraint(Sketcher.Constraint("Vertical", 26, 3, 27, 3))
sketch2.addConstraint(Sketcher.Constraint("Vertical", 27, 3, 28, 3))
sketch2.addConstraint(Sketcher.Constraint("Vertical", 28, 3, 29, 3))
sketch2.addConstraint(Sketcher.Constraint("Vertical", 13, 3, 2, 2))
sketch2.addConstraint(Sketcher.Constraint("Diameter", 5, 1.15))
sketch2.addConstraint(Sketcher.Constraint("Angle", 2, Q("-59.999999 deg")))
sketch2.addConstraint(Sketcher.Constraint("DistanceX", 5, 3, 11, 3, 2.0))
sketch2.addConstraint(Sketcher.Constraint("DistanceX", 12, 3, 14, 3, 2.0))
sketch2.addConstraint(Sketcher.Constraint("DistanceX", 0, 2, 0, 1, 6.15))
sketch2.addConstraint(Sketcher.Constraint("DistanceY", 1, 2, 1, 1, 31.55))
sketch2.addConstraint(Sketcher.Constraint("DistanceX", 23, 3, 25, 3, 1.95))
sketch2.addConstraint(Sketcher.Constraint("DistanceX", 14, 3, 35, 3, 8.835))
sketch2.addConstraint(Sketcher.Constraint("DistanceY", 23, 3, 0, 2, 1.575))
sketch2.addConstraint(Sketcher.Constraint("DistanceY", 2, 2, 11, 3, 1.575))
sketch2.addConstraint(Sketcher.Constraint("DistanceY", 11, 3, 6, 3, 8.033199))
sketch2.addConstraint(Sketcher.Constraint("DistanceY", 5, 3, -1, 1, 50.16325))
sketch2.addConstraint(Sketcher.Constraint("DistanceY", 8, 3, -1, 1, 37.316821))
sketch2.addConstraint(Sketcher.Constraint("DistanceX", 10, 3, -1, 1, 6.438929))
sketch2.addConstraint(Sketcher.Constraint("DistanceY", 18, 3, -1, 1, 33.034679))
sketch2.addConstraint(Sketcher.Constraint("DistanceX", 20, 3, -1, 1, 6.446071))
sketch2.addConstraint(Sketcher.Constraint("DistanceY", 7, 3, 19, 3, 12.846428))
sketch2.addConstraint(Sketcher.Constraint("DistanceY", 7, 3, -1, 1, 41.598964))
sketch2.addConstraint(Sketcher.Constraint("DistanceX", 9, 3, -1, 1, 6.431786))
sketch2.addConstraint(Sketcher.Constraint("DistanceX", 21, 3, -1, 1, 6.453214))
sketch2.addConstraint(Sketcher.Constraint("DistanceY", 22, 3, -1, 1, 24.470393))
sketch2.addConstraint(Sketcher.Constraint("DistanceX", 24, 3, -1, 1, 6.460357))
pad2 = body2.newObject("PartDesign::Pad", "Pad001")
pad2.Profile = sketch2
pad2.Length = 1.55
doc.recompute()

fillet2 = body2.newObject("PartDesign::Fillet", "Fillet001")
fillet2.Base = (pad2, edges_at(pad2, [(6.418, -55.489, 0.775), (-6.418, -55.489, 0.775)]))
fillet2.Radius = 0.15

doc.recompute()
